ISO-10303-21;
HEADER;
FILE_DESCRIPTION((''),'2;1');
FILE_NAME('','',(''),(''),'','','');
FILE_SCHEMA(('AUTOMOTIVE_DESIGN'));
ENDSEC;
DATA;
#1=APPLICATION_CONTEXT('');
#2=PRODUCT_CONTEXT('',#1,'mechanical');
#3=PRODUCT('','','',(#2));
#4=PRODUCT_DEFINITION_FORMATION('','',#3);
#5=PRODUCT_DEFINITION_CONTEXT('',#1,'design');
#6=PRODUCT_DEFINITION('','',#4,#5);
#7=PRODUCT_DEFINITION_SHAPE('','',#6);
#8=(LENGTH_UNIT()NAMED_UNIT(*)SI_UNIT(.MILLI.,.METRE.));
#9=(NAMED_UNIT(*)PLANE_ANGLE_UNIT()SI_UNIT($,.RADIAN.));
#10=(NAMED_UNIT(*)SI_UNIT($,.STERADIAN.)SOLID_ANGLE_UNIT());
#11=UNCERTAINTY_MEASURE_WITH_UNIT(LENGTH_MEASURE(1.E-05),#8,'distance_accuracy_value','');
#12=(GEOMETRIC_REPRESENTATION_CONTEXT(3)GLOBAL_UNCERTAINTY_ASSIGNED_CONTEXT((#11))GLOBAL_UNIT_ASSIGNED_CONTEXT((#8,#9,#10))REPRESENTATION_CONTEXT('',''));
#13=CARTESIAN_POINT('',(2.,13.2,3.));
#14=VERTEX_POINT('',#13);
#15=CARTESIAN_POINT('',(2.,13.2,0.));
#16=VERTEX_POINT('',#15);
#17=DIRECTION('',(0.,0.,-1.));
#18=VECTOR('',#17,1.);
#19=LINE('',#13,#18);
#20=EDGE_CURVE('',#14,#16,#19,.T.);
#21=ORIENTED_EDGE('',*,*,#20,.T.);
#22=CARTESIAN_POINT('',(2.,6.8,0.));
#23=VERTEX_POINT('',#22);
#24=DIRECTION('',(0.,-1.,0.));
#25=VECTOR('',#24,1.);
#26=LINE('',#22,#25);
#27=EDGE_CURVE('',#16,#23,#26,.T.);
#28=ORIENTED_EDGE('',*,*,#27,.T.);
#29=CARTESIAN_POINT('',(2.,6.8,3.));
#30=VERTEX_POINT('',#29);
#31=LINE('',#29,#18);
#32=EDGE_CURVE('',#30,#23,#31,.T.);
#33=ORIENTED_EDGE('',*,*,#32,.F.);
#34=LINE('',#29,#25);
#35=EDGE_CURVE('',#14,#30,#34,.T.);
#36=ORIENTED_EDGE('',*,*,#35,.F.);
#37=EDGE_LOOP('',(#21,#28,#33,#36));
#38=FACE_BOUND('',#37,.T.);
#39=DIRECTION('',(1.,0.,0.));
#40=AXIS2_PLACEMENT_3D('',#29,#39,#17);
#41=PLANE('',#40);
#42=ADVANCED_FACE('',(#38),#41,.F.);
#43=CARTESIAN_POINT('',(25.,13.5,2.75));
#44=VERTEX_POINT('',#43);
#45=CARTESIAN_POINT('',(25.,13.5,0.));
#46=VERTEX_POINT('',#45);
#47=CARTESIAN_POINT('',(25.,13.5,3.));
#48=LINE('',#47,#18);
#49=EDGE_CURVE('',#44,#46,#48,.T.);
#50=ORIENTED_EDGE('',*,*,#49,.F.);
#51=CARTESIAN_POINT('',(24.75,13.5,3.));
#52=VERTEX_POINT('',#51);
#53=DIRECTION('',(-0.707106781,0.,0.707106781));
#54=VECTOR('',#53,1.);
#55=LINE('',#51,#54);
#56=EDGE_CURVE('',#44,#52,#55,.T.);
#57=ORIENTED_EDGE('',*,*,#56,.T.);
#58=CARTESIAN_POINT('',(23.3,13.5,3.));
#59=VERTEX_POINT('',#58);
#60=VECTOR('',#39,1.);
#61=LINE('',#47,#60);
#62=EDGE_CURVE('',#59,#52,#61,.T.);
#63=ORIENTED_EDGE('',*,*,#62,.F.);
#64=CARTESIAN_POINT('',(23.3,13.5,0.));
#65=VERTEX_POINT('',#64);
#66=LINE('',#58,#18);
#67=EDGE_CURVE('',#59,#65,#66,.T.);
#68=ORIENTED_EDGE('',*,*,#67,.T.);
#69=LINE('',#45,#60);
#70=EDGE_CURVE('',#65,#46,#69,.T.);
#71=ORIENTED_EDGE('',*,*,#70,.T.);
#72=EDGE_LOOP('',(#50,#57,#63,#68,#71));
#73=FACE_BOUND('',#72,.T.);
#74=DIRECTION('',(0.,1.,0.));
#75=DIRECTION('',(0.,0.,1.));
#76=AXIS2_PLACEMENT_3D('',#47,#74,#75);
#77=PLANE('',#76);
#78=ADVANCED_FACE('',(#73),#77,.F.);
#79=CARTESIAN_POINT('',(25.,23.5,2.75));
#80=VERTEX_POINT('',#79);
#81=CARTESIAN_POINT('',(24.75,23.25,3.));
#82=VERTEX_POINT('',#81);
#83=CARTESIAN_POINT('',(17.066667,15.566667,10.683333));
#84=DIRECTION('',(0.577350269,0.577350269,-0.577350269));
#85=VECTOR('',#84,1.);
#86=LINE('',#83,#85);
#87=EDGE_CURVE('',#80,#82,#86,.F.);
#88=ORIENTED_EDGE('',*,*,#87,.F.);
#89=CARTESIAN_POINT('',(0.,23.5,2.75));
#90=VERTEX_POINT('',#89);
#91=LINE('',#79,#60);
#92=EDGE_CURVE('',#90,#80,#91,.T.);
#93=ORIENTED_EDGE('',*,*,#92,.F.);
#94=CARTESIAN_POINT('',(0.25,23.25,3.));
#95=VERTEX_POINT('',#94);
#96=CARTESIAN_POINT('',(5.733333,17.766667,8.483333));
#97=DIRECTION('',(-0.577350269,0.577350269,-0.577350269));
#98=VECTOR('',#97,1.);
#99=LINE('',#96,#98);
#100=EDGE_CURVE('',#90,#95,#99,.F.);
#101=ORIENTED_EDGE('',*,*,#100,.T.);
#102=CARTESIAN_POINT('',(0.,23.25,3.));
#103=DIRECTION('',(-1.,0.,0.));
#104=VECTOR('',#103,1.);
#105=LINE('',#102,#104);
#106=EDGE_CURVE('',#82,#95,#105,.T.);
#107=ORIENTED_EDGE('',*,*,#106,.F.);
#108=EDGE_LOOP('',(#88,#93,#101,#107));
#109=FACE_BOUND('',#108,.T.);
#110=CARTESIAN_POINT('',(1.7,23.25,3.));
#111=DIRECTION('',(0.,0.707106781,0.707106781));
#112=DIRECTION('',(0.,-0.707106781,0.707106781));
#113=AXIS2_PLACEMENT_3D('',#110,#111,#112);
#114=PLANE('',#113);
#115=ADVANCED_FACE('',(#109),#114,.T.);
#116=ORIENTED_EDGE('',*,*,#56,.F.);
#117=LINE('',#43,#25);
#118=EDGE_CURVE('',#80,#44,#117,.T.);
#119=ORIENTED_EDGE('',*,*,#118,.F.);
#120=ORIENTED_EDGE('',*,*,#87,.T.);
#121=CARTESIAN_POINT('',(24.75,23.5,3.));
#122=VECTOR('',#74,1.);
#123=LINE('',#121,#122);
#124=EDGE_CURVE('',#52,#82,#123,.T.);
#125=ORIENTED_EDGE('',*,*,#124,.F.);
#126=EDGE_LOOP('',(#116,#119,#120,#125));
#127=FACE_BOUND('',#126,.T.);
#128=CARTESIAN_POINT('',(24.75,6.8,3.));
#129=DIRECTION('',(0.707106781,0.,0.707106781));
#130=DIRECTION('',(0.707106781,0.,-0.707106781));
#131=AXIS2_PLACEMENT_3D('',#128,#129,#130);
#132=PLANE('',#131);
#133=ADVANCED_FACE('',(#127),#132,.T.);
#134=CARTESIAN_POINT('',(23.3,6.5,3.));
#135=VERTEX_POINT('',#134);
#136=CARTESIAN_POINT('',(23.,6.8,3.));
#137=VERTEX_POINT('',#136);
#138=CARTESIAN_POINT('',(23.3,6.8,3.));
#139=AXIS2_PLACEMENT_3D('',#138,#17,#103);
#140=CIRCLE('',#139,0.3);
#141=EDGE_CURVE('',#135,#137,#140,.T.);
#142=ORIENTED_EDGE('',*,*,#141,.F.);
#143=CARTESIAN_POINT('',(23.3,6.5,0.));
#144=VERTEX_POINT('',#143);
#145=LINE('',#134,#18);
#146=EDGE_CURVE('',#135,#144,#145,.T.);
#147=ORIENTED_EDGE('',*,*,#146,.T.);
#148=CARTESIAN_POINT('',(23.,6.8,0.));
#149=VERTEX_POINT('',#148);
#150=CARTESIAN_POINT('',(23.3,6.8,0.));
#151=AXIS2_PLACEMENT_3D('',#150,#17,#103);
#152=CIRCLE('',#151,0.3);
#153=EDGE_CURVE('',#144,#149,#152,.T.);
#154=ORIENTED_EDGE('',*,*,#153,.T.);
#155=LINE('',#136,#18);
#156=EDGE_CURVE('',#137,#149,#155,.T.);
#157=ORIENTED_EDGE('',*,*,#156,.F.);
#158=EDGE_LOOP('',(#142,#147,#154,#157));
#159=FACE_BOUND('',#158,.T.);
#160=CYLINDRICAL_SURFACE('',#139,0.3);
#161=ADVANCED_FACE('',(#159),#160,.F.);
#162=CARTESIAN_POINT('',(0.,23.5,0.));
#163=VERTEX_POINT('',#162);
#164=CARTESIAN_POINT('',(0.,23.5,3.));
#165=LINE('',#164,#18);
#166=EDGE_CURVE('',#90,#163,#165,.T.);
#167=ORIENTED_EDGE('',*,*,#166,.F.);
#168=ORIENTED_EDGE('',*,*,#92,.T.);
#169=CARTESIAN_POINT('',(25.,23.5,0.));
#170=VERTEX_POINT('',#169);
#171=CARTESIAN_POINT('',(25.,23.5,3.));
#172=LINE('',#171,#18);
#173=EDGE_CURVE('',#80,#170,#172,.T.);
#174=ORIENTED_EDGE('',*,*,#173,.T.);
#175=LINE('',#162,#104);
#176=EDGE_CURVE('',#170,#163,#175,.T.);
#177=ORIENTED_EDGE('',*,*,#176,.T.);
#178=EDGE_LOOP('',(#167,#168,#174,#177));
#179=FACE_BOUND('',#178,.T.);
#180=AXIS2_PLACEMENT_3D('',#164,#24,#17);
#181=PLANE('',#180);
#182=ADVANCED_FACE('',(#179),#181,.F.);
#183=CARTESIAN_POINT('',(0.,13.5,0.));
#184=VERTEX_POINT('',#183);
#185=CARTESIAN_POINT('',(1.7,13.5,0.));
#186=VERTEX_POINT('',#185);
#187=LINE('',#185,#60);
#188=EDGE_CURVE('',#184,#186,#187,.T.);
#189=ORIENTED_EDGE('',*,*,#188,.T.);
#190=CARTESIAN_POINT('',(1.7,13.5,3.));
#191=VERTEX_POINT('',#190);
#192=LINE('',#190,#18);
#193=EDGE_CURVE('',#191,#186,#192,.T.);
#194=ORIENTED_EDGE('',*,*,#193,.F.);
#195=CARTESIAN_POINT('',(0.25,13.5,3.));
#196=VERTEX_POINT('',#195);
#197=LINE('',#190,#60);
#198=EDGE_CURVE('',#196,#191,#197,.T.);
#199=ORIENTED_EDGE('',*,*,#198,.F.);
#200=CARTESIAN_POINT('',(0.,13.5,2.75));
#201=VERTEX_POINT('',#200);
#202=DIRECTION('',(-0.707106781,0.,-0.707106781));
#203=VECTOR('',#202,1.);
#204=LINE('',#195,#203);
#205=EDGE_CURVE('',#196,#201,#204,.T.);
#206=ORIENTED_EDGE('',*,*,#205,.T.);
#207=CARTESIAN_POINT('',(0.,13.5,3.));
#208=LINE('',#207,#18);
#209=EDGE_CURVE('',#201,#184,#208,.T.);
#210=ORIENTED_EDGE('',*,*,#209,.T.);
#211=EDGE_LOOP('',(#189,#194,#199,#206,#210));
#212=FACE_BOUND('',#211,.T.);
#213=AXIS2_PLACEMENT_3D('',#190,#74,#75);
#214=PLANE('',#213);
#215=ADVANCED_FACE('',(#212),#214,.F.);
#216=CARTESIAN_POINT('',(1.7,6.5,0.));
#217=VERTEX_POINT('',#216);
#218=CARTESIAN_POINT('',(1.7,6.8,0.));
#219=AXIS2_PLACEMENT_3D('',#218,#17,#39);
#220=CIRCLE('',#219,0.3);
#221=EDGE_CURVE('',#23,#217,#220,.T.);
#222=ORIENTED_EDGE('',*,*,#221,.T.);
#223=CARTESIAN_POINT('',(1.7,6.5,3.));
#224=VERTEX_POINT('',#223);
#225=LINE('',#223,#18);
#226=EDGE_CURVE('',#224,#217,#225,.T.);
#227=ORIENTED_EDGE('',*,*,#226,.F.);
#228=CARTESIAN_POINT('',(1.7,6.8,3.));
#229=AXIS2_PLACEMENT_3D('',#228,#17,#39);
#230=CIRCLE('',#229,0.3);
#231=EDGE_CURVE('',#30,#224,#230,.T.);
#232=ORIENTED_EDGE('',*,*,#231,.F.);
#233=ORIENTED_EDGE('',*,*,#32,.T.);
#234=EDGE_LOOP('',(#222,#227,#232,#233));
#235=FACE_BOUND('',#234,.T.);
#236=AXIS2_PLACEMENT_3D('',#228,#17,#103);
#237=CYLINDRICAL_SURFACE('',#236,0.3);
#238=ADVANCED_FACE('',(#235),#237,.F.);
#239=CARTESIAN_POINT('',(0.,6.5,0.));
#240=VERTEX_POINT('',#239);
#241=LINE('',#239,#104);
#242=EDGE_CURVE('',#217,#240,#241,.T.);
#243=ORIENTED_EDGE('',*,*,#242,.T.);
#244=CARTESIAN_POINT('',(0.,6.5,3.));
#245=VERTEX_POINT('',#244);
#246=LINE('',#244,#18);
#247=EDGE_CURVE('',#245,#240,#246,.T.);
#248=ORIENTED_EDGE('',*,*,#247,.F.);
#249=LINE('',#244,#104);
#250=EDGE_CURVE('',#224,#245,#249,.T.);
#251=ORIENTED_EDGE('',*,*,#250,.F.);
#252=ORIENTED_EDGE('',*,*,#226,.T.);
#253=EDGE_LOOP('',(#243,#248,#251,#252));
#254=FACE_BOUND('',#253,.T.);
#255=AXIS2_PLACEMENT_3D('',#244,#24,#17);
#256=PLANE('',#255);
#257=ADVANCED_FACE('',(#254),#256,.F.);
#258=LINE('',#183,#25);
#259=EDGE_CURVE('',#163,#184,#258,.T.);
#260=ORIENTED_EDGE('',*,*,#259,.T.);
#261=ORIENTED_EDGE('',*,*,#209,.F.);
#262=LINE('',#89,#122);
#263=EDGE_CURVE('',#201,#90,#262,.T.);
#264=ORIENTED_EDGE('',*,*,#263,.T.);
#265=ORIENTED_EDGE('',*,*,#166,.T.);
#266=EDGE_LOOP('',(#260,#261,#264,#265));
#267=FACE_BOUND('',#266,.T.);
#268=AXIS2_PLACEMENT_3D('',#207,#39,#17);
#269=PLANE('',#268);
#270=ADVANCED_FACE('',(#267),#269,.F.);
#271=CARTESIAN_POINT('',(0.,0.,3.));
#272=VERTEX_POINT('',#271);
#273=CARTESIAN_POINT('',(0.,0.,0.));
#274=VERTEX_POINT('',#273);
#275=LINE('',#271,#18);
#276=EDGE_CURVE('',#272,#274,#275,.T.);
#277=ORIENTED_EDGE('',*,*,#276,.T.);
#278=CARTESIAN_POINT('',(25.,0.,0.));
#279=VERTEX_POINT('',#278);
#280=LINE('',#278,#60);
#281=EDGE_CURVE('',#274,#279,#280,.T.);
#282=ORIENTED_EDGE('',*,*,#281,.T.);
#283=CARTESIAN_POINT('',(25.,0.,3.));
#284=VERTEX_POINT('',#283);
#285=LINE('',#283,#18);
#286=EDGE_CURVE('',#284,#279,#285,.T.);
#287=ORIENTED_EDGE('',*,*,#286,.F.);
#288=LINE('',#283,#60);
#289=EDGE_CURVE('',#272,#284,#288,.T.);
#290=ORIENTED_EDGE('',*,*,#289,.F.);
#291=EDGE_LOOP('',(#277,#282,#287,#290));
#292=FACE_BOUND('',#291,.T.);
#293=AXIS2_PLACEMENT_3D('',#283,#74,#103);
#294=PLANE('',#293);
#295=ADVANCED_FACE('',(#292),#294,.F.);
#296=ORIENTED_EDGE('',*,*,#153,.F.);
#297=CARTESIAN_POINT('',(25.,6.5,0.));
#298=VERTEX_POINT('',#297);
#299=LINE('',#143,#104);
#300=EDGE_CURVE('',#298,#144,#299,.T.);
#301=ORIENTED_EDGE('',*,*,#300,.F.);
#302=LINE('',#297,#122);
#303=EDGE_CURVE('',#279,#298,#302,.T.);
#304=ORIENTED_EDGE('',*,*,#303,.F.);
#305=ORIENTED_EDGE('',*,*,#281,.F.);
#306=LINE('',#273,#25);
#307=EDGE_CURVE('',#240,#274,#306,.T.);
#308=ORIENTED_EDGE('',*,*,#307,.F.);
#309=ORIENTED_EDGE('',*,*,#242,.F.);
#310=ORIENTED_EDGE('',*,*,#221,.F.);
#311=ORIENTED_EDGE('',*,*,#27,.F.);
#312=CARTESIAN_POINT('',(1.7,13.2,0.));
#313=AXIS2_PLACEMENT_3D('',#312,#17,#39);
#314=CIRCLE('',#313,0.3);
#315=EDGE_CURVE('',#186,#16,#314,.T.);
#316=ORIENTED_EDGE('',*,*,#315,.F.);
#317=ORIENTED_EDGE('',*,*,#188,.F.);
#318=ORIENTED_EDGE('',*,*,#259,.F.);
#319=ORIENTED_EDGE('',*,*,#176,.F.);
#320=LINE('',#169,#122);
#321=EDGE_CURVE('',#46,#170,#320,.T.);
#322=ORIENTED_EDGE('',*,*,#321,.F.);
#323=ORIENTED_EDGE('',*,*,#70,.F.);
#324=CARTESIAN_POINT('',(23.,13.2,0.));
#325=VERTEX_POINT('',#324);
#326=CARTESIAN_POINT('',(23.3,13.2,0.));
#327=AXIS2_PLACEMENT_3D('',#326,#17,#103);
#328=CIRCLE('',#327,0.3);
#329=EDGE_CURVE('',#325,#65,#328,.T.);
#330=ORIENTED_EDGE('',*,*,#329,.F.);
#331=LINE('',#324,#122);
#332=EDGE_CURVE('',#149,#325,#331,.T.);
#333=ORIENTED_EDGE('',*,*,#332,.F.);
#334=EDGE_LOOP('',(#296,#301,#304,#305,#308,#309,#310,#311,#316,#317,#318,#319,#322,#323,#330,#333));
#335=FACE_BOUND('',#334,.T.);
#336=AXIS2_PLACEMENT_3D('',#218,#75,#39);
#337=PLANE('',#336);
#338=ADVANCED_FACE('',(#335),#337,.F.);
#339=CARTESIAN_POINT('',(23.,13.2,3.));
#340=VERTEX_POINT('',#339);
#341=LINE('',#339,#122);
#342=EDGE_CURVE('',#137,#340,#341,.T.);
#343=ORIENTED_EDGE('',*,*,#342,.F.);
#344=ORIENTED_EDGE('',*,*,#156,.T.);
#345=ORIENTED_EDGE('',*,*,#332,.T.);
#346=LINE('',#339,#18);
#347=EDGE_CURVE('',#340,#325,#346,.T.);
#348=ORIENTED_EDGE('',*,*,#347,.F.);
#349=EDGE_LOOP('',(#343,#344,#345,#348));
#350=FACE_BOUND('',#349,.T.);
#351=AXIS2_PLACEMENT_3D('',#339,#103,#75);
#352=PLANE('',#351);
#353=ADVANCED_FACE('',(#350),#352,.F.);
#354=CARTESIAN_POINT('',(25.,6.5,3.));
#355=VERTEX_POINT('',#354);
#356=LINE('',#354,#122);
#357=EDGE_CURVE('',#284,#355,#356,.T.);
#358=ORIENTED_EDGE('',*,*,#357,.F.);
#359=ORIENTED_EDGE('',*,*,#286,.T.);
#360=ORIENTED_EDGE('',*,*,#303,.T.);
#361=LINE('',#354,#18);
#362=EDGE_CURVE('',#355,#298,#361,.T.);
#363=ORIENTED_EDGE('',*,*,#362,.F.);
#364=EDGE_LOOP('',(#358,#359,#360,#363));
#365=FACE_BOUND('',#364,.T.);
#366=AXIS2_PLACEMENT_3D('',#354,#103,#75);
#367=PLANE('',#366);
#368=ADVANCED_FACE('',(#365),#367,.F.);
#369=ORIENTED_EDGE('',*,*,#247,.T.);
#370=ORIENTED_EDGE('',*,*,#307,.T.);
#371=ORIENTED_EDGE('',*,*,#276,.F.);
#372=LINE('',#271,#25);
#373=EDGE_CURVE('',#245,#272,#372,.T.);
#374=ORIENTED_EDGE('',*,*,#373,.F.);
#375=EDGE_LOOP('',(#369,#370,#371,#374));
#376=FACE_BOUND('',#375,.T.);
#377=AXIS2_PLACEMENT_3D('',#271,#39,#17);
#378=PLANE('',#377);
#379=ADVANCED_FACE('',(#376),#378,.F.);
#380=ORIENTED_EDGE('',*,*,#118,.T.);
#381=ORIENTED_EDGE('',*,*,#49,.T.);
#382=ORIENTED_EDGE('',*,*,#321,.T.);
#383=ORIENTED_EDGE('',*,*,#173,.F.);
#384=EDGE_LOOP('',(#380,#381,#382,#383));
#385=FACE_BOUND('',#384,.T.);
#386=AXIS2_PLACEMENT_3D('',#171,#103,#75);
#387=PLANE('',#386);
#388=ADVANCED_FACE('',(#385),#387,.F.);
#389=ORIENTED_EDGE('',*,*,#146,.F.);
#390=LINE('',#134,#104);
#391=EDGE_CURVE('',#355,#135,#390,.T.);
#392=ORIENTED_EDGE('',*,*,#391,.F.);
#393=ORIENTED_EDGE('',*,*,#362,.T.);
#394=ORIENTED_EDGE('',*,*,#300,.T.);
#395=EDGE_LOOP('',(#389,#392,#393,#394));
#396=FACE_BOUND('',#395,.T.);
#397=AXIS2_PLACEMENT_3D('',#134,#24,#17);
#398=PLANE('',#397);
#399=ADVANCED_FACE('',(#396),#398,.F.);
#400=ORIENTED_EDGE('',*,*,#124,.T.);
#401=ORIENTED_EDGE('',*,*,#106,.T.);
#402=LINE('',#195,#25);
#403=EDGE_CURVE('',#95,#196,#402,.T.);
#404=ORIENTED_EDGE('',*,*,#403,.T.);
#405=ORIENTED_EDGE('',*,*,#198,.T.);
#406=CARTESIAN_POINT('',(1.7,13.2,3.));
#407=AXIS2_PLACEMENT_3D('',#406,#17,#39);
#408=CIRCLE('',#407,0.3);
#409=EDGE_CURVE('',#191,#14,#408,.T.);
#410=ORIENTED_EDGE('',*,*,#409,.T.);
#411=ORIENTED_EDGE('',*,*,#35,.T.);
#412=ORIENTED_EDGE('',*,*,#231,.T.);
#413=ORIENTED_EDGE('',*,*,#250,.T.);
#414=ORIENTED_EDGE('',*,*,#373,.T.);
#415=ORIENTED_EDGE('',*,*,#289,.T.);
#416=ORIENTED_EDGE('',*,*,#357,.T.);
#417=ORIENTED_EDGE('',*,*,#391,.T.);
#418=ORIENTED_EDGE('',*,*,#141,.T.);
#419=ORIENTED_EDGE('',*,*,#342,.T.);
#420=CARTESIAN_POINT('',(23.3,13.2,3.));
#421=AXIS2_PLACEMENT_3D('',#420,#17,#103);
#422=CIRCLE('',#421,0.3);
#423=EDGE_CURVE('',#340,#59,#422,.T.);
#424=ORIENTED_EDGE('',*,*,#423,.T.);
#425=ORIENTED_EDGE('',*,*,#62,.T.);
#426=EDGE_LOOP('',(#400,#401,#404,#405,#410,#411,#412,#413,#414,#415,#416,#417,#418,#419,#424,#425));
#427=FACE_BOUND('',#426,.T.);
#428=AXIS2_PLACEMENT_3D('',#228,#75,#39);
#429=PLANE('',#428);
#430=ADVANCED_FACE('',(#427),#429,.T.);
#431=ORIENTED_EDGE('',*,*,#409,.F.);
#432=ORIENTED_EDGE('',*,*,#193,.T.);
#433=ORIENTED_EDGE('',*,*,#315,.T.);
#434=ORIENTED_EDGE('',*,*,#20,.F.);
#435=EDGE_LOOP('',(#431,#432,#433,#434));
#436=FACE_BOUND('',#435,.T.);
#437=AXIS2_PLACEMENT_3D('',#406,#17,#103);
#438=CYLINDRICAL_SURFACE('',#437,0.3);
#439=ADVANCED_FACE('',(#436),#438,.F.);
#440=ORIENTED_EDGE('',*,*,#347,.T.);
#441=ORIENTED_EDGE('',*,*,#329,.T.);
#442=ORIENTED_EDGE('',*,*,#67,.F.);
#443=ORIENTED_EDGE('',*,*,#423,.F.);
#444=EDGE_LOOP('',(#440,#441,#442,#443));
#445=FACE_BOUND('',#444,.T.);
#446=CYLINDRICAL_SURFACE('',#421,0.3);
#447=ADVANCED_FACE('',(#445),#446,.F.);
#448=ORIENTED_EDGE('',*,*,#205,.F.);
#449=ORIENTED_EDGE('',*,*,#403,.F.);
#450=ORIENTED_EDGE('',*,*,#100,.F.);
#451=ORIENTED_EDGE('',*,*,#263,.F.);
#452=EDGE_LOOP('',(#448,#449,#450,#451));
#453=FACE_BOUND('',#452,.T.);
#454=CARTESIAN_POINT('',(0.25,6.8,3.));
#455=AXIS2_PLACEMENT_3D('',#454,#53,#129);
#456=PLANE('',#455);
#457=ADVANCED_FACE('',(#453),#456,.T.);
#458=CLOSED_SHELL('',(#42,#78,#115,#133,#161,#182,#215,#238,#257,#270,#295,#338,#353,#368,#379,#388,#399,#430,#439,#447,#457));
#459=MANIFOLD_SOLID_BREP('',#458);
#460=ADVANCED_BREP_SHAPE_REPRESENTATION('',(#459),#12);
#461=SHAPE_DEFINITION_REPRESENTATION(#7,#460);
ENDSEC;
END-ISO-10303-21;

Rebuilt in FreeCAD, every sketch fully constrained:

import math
import FreeCAD as App
import Part
import Sketcher


def edges_at(feature, points):
    """Names of the edges that pass closest to the given points."""
    edges = feature.Shape.Edges
    near = lambda p: min(range(len(edges)), key=lambda i: edges[i].distToShape(Part.Vertex(*p))[0])
    return sorted({f"Edge{near(p) + 1}" for p in points})

doc = App.newDocument("Part")
body = doc.addObject("PartDesign::Body", "Body")

# Sketch on XY plane
sketch1 = body.newObject("Sketcher::SketchObject", "Sketch")
sketch1.AttachmentSupport = (doc.getObject("XY_Plane"), [""])
sketch1.MapMode = "FlatFace"
sketch1.addGeometry([
    Part.LineSegment(App.Vector(0, 6.5, 0), App.Vector(0, 0, 0)),  # 0
    Part.LineSegment(App.Vector(0, 0, 0), App.Vector(25, 0, 0)),  # 1
    Part.LineSegment(App.Vector(25, 0, 0), App.Vector(25, 6.5, 0)),  # 2
    Part.LineSegment(App.Vector(25, 6.5, 0), App.Vector(23.3, 6.5, 0)),  # 3
    Part.ArcOfCircle(Part.Circle(App.Vector(23.3, 6.8, 0), App.Vector(0, 0, 1), 0.3), math.radians(-180), math.radians(-90)),  # 4
    Part.LineSegment(App.Vector(23, 6.8, 0), App.Vector(23, 13.2, 0)),  # 5
    Part.ArcOfCircle(Part.Circle(App.Vector(23.3, 13.2, 0), App.Vector(0, 0, 1), 0.3), math.radians(90), math.radians(180)),  # 6
    Part.LineSegment(App.Vector(23.3, 13.5, 0), App.Vector(25, 13.5, 0)),  # 7
    Part.LineSegment(App.Vector(25, 13.5, 0), App.Vector(25, 23.5, 0)),  # 8
    Part.LineSegment(App.Vector(25, 23.5, 0), App.Vector(0, 23.5, 0)),  # 9
    Part.LineSegment(App.Vector(0, 23.5, 0), App.Vector(0, 13.5, 0)),  # 10
    Part.LineSegment(App.Vector(0, 13.5, 0), App.Vector(1.7, 13.5, 0)),  # 11
    Part.ArcOfCircle(Part.Circle(App.Vector(1.7, 13.2, 0), App.Vector(0, 0, 1), 0.3), math.radians(0), math.radians(90)),  # 12
    Part.LineSegment(App.Vector(2, 13.2, 0), App.Vector(2, 6.8, 0)),  # 13
    Part.ArcOfCircle(Part.Circle(App.Vector(1.7, 6.8, 0), App.Vector(0, 0, 1), 0.3), math.radians(-90), math.radians(0)),  # 14
    Part.LineSegment(App.Vector(1.7, 6.5, 0), App.Vector(0, 6.5, 0)),  # 15
], False)
sketch1.addConstraint([
    Sketcher.Constraint("Coincident", 0, 2, 1, 1),
    Sketcher.Constraint("Coincident", 1, 2, 2, 1),
    Sketcher.Constraint("Coincident", 2, 2, 3, 1),
    Sketcher.Constraint("Tangent", 3, 2, 4, 2),
    Sketcher.Constraint("Tangent", 4, 1, 5, 1),
    Sketcher.Constraint("Tangent", 5, 2, 6, 2),
    Sketcher.Constraint("Tangent", 6, 1, 7, 1),
    Sketcher.Constraint("Coincident", 7, 2, 8, 1),
    Sketcher.Constraint("Coincident", 8, 2, 9, 1),
    Sketcher.Constraint("Coincident", 9, 2, 10, 1),
    Sketcher.Constraint("Coincident", 10, 2, 11, 1),
    Sketcher.Constraint("Tangent", 11, 2, 12, 2),
    Sketcher.Constraint("Tangent", 12, 1, 13, 1),
    Sketcher.Constraint("Tangent", 13, 2, 14, 2),
    Sketcher.Constraint("Tangent", 14, 1, 15, 1),
    Sketcher.Constraint("Coincident", 15, 2, 0, 1),
    Sketcher.Constraint("Vertical", 0),
    Sketcher.Constraint("Horizontal", 1),
    Sketcher.Constraint("Vertical", 2),
    Sketcher.Constraint("Horizontal", 3),
    Sketcher.Constraint("Vertical", 5),
    Sketcher.Constraint("Horizontal", 7),
    Sketcher.Constraint("Vertical", 8),
    Sketcher.Constraint("Horizontal", 9),
    Sketcher.Constraint("Vertical", 10),
    Sketcher.Constraint("Horizontal", 11),
    Sketcher.Constraint("Vertical", 13),
    Sketcher.Constraint("Horizontal", 15),
    Sketcher.Constraint("Coincident", 0, 2, -1, 1),
    Sketcher.Constraint("Equal", 4, 6),
    Sketcher.Constraint("Equal", 6, 12),
    Sketcher.Constraint("Equal", 12, 14),
    Sketcher.Constraint("PointOnObject", 9, 2, -2),
    Sketcher.Constraint("Horizontal", 6, 3, 12, 3),
    Sketcher.Constraint("Horizontal", 4, 3, 14, 3),
    Sketcher.Constraint("Vertical", 2, 2, 7, 2),
    Sketcher.Constraint("Equal", 7, 11),
    Sketcher.Constraint("Radius", 4, 0.3),
    Sketcher.Constraint("DistanceX", 1, 1, 1, 2, 25.0),
    Sketcher.Constraint("DistanceY", 8, 1, 8, 2, 10.0),
    Sketcher.Constraint("DistanceX", 3, 2, 3, 1, 1.7),
    Sketcher.Constraint("DistanceY", 0, 2, 0, 1, 6.5),
    Sketcher.Constraint("DistanceY", 5, 1, 5, 2, 6.4),
])
pad1 = body.newObject("PartDesign::Pad", "Pad")
pad1.Profile = sketch1
pad1.Length = 3
doc.recompute()

chamfer = body.newObject("PartDesign::Chamfer", "Chamfer")
chamfer.Base = (pad1, edges_at(pad1, [(25, 18.5, 3), (12.5, 23.5, 3), (0, 18.5, 3)]))
chamfer.Size = 0.25

doc.recompute()
